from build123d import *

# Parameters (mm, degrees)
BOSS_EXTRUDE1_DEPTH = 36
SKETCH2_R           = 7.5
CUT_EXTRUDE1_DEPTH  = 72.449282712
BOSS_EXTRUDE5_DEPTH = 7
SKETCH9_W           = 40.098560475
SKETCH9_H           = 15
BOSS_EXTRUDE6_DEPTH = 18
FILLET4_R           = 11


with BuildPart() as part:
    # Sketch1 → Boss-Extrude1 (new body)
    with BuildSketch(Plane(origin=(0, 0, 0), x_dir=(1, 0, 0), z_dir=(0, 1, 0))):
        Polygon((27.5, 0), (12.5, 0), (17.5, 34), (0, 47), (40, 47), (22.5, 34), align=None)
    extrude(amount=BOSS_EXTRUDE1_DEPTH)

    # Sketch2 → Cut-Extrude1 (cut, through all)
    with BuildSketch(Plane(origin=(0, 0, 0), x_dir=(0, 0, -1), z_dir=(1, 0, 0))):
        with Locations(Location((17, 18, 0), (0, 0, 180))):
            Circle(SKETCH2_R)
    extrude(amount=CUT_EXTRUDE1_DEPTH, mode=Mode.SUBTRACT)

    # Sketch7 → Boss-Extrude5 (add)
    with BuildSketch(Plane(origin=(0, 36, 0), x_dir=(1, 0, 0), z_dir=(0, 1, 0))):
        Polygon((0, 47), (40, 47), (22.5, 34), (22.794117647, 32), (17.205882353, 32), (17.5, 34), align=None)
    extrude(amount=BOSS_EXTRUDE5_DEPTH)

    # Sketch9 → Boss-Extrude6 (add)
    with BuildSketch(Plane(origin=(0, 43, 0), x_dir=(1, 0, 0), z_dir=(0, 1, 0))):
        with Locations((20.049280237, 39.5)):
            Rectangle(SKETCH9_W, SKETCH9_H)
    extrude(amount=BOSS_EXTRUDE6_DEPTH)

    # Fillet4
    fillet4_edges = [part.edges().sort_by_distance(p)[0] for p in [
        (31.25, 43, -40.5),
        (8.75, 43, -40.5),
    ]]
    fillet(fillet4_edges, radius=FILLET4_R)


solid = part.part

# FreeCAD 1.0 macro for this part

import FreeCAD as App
import Part
import Sketcher
from FreeCAD import Vector


def edges_at(feature, points):
    """Names of the edges that pass closest to the given points."""
    edges = feature.Shape.Edges
    near = lambda p: min(range(len(edges)), key=lambda i: edges[i].distToShape(Part.Vertex(*p))[0])
    return sorted({f"Edge{near(p) + 1}" for p in points})

doc = App.newDocument("Part")
body = doc.addObject("PartDesign::Body", "Body")

# Sketch on XZ plane
sketch1 = body.newObject("Sketcher::SketchObject", "Sketch")
sketch1.AttachmentSupport = (doc.getObject("XZ_Plane"), [""])
sketch1.MapMode = "FlatFace"
sketch1.addGeometry([
    Part.LineSegment(Vector(12, 0, 0), Vector(28, 0, 0)),  # 0
    Part.LineSegment(Vector(28, 0, 0), Vector(22, -34, 0)),  # 1
    Part.LineSegment(Vector(22, -34, 0), Vector(40, -47, 0)),  # 2
    Part.LineSegment(Vector(40, -47, 0), Vector(0, -47, 0)),  # 3
    Part.LineSegment(Vector(0, -47, 0), Vector(18, -34, 0)),  # 4
    Part.LineSegment(Vector(18, -34, 0), Vector(12, 0, 0)),  # 5
], False)
sketch1.addConstraint([
    Sketcher.Constraint("Coincident", 0, 2, 1, 1),
    Sketcher.Constraint("Coincident", 1, 2, 2, 1),
    Sketcher.Constraint("Coincident", 2, 2, 3, 1),
    Sketcher.Constraint("Coincident", 3, 2, 4, 1),
    Sketcher.Constraint("Coincident", 4, 2, 5, 1),
    Sketcher.Constraint("Coincident", 5, 2, 0, 1),
    Sketcher.Constraint("Horizontal", 0),
    Sketcher.Constraint("Horizontal", 3),
    Sketcher.Constraint("PointOnObject", 0, 2, -1),
    Sketcher.Constraint("PointOnObject", 3, 2, -2),
    Sketcher.Constraint("Horizontal", 1, 2, 4, 2),
    Sketcher.Constraint("Equal", 2, 4),
    Sketcher.Constraint("Equal", 1, 5),
    Sketcher.Constraint("DistanceX", 0, 1, 0, 2, 15.0),
    Sketcher.Constraint("DistanceX", 3, 2, 3, 1, 40.0),
    Sketcher.Constraint("DistanceY", 1, 2, -1, 1, 34.0),
    Sketcher.Constraint("DistanceY", 2, 2, -1, 1, 47.0),
    Sketcher.Constraint("DistanceX", 1, 2, 0, 2, 5.0),
])
pad1 = body.newObject("PartDesign::Pad", "Pad")
pad1.Profile = sketch1
pad1.Length = 36
pad1.Reversed = True

# Sketch on YZ plane
sketch2 = body.newObject("Sketcher::SketchObject", "Sketch001")
sketch2.AttachmentSupport = (doc.getObject("YZ_Plane"), [""])
sketch2.MapMode = "FlatFace"
sketch2.addGeometry(Part.Circle(Vector(18, -17, 0), Vector(0, 0, 1), 8), False)
sketch2.addConstraint([
    Sketcher.Constraint("Diameter", 0, 15.0),
    Sketcher.Constraint("DistanceX", -1, 1, 0, 3, 18.0),
    Sketcher.Constraint("DistanceY", 0, 3, -1, 1, 17.0),
])
pocket1 = body.newObject("PartDesign::Pocket", "Pocket")
pocket1.Profile = sketch2
pocket1.Type = "ThroughAll"
pocket1.Reversed = True

# Sketch on XZ plane
sketch3 = body.newObject("Sketcher::SketchObject", "Sketch002")
sketch3.AttachmentSupport = (doc.getObject("XZ_Plane"), [""])
sketch3.MapMode = "FlatFace"
sketch3.AttachmentOffset = App.Placement(Vector(0, 0, -36), App.Rotation())
sketch3.addGeometry([
    Part.LineSegment(Vector(40, -47, 0), Vector(0, -47, 0)),  # 0
    Part.LineSegment(Vector(0, -47, 0), Vector(17.5, -34, 0)),  # 1
    Part.LineSegment(Vector(17.5, -34, 0), Vector(17.2, -32, 0)),  # 2
    Part.LineSegment(Vector(17.2, -32, 0), Vector(22.8, -32, 0)),  # 3
    Part.LineSegment(Vector(22.8, -32, 0), Vector(22.5, -34, 0)),  # 4
    Part.LineSegment(Vector(22.5, -34, 0), Vector(40, -47, 0)),  # 5
], False)
sketch3.addConstraint([
    Sketcher.Constraint("Coincident", 0, 2, 1, 1),
    Sketcher.Constraint("Coincident", 1, 2, 2, 1),
    Sketcher.Constraint("Coincident", 2, 2, 3, 1),
    Sketcher.Constraint("Coincident", 3, 2, 4, 1),
    Sketcher.Constraint("Coincident", 4, 2, 5, 1),
    Sketcher.Constraint("Coincident", 5, 2, 0, 1),
    Sketcher.Constraint("Horizontal", 0),
    Sketcher.Constraint("Horizontal", 3),
    Sketcher.Constraint("PointOnObject", 0, 2, -2),
    Sketcher.Constraint("Horizontal", 1, 2, 4, 2),
    Sketcher.Constraint("Equal", 2, 4),
    Sketcher.Constraint("Equal", 1, 5),
    Sketcher.Constraint("DistanceX", 0, 2, 0, 1, 40.0),
    Sketcher.Constraint("DistanceY", 0, 2, -1, 1, 47.0),
    Sketcher.Constraint("DistanceY", 1, 2, -1, 1, 34.0),
    Sketcher.Constraint("DistanceY", 2, 2, -1, 1, 32.0),
    Sketcher.Constraint("DistanceX", 1, 2, 4, 2, 5.0),
    Sketcher.Constraint("Distance", 2, 2.021511),
])
pad2 = body.newObject("PartDesign::Pad", "Pad001")
pad2.Profile = sketch3
pad2.Length = 7
pad2.Reversed = True

# Sketch on XZ plane
sketch4 = body.newObject("Sketcher::SketchObject", "Sketch003")
sketch4.AttachmentSupport = (doc.getObject("XZ_Plane"), [""])
sketch4.MapMode = "FlatFace"
sketch4.AttachmentOffset = App.Placement(Vector(0, 0, -43), App.Rotation())
sketch4.addGeometry([
    Part.LineSegment(Vector(0, -47, 0), Vector(0, -32, 0)),
    Part.LineSegment(Vector(0, -32, 0), Vector(40, -32, 0)),
    Part.LineSegment(Vector(40, -32, 0), Vector(40, -47, 0)),
    Part.LineSegment(Vector(40, -47, 0), Vector(0, -47, 0)),
], False)
sketch4.addConstraint([
    Sketcher.Constraint("Coincident", 0, 2, 1, 1),
    Sketcher.Constraint("Coincident", 1, 2, 2, 1),
    Sketcher.Constraint("Coincident", 2, 2, 3, 1),
    Sketcher.Constraint("Coincident", 3, 2, 0, 1),
    Sketcher.Constraint("Vertical", 0),
    Sketcher.Constraint("Horizontal", 1),
    Sketcher.Constraint("Vertical", 2),
    Sketcher.Constraint("Horizontal", 3),
    Sketcher.Constraint("PointOnObject", 0, 2, -2),
    Sketcher.Constraint("DistanceY", 0, 1, 0, 2, 15.0),
    Sketcher.Constraint("DistanceY", 0, 2, -1, 1, 32.0),
    Sketcher.Constraint("DistanceX", 1, 1, 1, 2, 40.09856),
])
pad3 = body.newObject("PartDesign::Pad", "Pad002")
pad3.Profile = sketch4
pad3.Length = 18
pad3.Reversed = True
doc.recompute()

fillet = body.newObject("PartDesign::Fillet", "Fillet")
fillet.Base = (pad3, edges_at(pad3, [(31.25, 43, -40.5), (8.75, 43, -40.5)]))
fillet.Radius = 11

doc.recompute()
